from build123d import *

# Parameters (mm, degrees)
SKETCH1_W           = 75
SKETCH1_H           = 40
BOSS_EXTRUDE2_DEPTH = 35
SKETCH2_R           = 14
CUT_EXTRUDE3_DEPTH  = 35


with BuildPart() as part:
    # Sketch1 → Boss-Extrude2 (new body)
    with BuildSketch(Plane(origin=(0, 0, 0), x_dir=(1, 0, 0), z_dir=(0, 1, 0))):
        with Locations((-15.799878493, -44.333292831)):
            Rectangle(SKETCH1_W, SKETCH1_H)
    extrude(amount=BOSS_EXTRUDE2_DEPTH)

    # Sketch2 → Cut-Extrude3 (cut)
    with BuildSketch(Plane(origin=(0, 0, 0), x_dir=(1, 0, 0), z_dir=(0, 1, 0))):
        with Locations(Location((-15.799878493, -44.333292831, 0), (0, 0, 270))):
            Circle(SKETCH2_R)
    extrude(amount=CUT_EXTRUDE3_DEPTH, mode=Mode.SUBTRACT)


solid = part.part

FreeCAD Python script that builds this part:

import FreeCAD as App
import Part
import Sketcher


def add_polygon(sketch, points):
    """Adds a closed chain of lines whose ends are joined by coincident constraints."""
    first, n = sketch.GeometryCount, len(points)
    for a, b in zip(points, points[1:] + points[:1]):
        sketch.addGeometry(Part.LineSegment(App.Vector(*a, 0), App.Vector(*b, 0)), False)
    for i in range(n):
        sketch.addConstraint(Sketcher.Constraint("Coincident", first + i, 2, first + (i + 1) % n, 1))

doc = App.newDocument("Part")
body = doc.addObject("PartDesign::Body", "Body")

# Sketch on XZ plane
sketch1 = body.newObject("Sketcher::SketchObject", "Sketch")
sketch1.AttachmentSupport = (doc.getObject("XZ_Plane"), [""])
sketch1.MapMode = "FlatFace"
add_polygon(sketch1, [(-53.299878, 24.333293), (-53.299878, 64.333293), (21.700122, 64.333293), (21.700122, 24.333293)])  # lines 0-3
sketch1.addConstraint([
    Sketcher.Constraint("Vertical", 0),
    Sketcher.Constraint("Horizontal", 1),
    Sketcher.Constraint("Vertical", 2),
    Sketcher.Constraint("Horizontal", 3),
    Sketcher.Constraint("DistanceX", 1, 1, 1, 2, 75.0),
    Sketcher.Constraint("DistanceY", 0, 1, 0, 2, 40.0),
    Sketcher.Constraint("DistanceX", 0, 2, -1, 1, 53.299878),
    Sketcher.Constraint("DistanceY", -1, 1, 0, 2, 64.333293),
])
pad1 = body.newObject("PartDesign::Pad", "Pad")
pad1.Profile = sketch1
pad1.Length = 35
pad1.Reversed = True

# Sketch on XZ plane
sketch2 = body.newObject("Sketcher::SketchObject", "Sketch001")
sketch2.AttachmentSupport = (doc.getObject("XZ_Plane"), [""])
sketch2.MapMode = "FlatFace"
sketch2.addGeometry(Part.Circle(App.Vector(-15.799878, 44.333293, 0), App.Vector(0, 0, 1), 14), False)
sketch2.addConstraint([
    Sketcher.Constraint("Diameter", 0, 28.0),
    Sketcher.Constraint("DistanceX", 0, 3, -1, 1, 15.799878),
    Sketcher.Constraint("DistanceY", -1, 1, 0, 3, 44.333293),
])
pocket1 = body.newObject("PartDesign::Pocket", "Pocket")
pocket1.Profile = sketch2
pocket1.Length = 35

doc.recompute()
